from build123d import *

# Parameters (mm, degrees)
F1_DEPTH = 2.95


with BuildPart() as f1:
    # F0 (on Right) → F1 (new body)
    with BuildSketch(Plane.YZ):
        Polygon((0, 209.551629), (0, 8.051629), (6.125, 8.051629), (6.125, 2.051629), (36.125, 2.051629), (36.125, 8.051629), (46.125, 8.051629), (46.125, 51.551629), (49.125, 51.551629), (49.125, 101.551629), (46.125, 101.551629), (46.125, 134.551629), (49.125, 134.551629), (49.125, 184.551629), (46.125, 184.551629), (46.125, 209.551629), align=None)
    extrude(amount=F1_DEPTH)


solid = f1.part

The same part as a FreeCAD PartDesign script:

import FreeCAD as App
import Part
import Sketcher
from FreeCAD import Vector
Q = App.Units.Quantity


def add_polygon(sketch, points):
    """Adds a closed chain of lines whose ends are joined by coincident constraints."""
    first, n = sketch.GeometryCount, len(points)
    for a, b in zip(points, points[1:] + points[:1]):
        sketch.addGeometry(Part.LineSegment(App.Vector(*a, 0), App.Vector(*b, 0)), False)
    for i in range(n):
        sketch.addConstraint(Sketcher.Constraint("Coincident", first + i, 2, first + (i + 1) % n, 1))

doc = App.newDocument("Part")
body = doc.addObject("PartDesign::Body", "Body")

# Sketch on YZ plane
sketch1 = body.newObject("Sketcher::SketchObject", "Sketch")
sketch1.AttachmentSupport = (doc.getObject("YZ_Plane"), [""])
sketch1.MapMode = "FlatFace"
add_polygon(sketch1, [(0, 209.6), (0, 8.1), (6.1, 8.1), (6.1, 2.1), (36.1, 2.1), (36.1, 8.1), (46.1, 8.1), (46.1, 51.6), (49.1, 51.6), (49.1, 101.6), (46.1, 101.6), (46.1, 134.6), (49.1, 134.6), (49.1, 184.6), (46.1, 184.6), (46.1, 209.6)])  # lines 0-15
sketch1.addConstraint([
    Sketcher.Constraint("Vertical", 0),
    Sketcher.Constraint("Horizontal", 1),
    Sketcher.Constraint("Vertical", 2),
    Sketcher.Constraint("Horizontal", 3),
    Sketcher.Constraint("Vertical", 4),
    Sketcher.Constraint("Horizontal", 5),
    Sketcher.Constraint("Vertical", 6),
    Sketcher.Constraint("Horizontal", 7),
    Sketcher.Constraint("Vertical", 8),
    Sketcher.Constraint("Horizontal", 9),
    Sketcher.Constraint("Vertical", 10),
    Sketcher.Constraint("Horizontal", 11),
    Sketcher.Constraint("Vertical", 12),
    Sketcher.Constraint("Horizontal", 13),
    Sketcher.Constraint("Vertical", 14),
    Sketcher.Constraint("Horizontal", 15),
    Sketcher.Constraint("PointOnObject", 0, 2, -2),
    Sketcher.Constraint("Horizontal", 1, 2, 4, 2),
    Sketcher.Constraint("Vertical", 6, 2, 9, 2),
    Sketcher.Constraint("Vertical", 8, 2, 11, 2),
    Sketcher.Constraint("Vertical", 10, 2, 13, 2),
    Sketcher.Constraint("Equal", 8, 12),
    Sketcher.Constraint("DistanceX", 3, 1, 3, 2, Q("30 mm")),
    Sketcher.Constraint("DistanceX", 5, 1, 5, 2, Q("10 mm")),
    Sketcher.Constraint("DistanceX", 7, 1, 7, 2, Q("3 mm")),
    Sketcher.Constraint("DistanceY", 2, 2, 2, 1, Q("6 mm")),
    Sketcher.Constraint("DistanceY", 8, 1, 8, 2, Q("50 mm")),
    Sketcher.Constraint("DistanceY", 10, 1, 10, 2, Q("33 mm")),
    Sketcher.Constraint("DistanceY", 14, 1, 14, 2, Q("25 mm")),
    Sketcher.Constraint("DistanceY", 0, 2, 0, 1, Q("201.5 mm")),
    Sketcher.Constraint("DistanceX", 1, 1, 1, 2, Q("6.125 mm")),
    Sketcher.Constraint("DistanceY", -1, 1, 0, 2, Q("8.051629 mm")),
])
pad1 = body.newObject("PartDesign::Pad", "Pad")
pad1.Profile = sketch1
pad1.Length = 2.95

doc.recompute()
